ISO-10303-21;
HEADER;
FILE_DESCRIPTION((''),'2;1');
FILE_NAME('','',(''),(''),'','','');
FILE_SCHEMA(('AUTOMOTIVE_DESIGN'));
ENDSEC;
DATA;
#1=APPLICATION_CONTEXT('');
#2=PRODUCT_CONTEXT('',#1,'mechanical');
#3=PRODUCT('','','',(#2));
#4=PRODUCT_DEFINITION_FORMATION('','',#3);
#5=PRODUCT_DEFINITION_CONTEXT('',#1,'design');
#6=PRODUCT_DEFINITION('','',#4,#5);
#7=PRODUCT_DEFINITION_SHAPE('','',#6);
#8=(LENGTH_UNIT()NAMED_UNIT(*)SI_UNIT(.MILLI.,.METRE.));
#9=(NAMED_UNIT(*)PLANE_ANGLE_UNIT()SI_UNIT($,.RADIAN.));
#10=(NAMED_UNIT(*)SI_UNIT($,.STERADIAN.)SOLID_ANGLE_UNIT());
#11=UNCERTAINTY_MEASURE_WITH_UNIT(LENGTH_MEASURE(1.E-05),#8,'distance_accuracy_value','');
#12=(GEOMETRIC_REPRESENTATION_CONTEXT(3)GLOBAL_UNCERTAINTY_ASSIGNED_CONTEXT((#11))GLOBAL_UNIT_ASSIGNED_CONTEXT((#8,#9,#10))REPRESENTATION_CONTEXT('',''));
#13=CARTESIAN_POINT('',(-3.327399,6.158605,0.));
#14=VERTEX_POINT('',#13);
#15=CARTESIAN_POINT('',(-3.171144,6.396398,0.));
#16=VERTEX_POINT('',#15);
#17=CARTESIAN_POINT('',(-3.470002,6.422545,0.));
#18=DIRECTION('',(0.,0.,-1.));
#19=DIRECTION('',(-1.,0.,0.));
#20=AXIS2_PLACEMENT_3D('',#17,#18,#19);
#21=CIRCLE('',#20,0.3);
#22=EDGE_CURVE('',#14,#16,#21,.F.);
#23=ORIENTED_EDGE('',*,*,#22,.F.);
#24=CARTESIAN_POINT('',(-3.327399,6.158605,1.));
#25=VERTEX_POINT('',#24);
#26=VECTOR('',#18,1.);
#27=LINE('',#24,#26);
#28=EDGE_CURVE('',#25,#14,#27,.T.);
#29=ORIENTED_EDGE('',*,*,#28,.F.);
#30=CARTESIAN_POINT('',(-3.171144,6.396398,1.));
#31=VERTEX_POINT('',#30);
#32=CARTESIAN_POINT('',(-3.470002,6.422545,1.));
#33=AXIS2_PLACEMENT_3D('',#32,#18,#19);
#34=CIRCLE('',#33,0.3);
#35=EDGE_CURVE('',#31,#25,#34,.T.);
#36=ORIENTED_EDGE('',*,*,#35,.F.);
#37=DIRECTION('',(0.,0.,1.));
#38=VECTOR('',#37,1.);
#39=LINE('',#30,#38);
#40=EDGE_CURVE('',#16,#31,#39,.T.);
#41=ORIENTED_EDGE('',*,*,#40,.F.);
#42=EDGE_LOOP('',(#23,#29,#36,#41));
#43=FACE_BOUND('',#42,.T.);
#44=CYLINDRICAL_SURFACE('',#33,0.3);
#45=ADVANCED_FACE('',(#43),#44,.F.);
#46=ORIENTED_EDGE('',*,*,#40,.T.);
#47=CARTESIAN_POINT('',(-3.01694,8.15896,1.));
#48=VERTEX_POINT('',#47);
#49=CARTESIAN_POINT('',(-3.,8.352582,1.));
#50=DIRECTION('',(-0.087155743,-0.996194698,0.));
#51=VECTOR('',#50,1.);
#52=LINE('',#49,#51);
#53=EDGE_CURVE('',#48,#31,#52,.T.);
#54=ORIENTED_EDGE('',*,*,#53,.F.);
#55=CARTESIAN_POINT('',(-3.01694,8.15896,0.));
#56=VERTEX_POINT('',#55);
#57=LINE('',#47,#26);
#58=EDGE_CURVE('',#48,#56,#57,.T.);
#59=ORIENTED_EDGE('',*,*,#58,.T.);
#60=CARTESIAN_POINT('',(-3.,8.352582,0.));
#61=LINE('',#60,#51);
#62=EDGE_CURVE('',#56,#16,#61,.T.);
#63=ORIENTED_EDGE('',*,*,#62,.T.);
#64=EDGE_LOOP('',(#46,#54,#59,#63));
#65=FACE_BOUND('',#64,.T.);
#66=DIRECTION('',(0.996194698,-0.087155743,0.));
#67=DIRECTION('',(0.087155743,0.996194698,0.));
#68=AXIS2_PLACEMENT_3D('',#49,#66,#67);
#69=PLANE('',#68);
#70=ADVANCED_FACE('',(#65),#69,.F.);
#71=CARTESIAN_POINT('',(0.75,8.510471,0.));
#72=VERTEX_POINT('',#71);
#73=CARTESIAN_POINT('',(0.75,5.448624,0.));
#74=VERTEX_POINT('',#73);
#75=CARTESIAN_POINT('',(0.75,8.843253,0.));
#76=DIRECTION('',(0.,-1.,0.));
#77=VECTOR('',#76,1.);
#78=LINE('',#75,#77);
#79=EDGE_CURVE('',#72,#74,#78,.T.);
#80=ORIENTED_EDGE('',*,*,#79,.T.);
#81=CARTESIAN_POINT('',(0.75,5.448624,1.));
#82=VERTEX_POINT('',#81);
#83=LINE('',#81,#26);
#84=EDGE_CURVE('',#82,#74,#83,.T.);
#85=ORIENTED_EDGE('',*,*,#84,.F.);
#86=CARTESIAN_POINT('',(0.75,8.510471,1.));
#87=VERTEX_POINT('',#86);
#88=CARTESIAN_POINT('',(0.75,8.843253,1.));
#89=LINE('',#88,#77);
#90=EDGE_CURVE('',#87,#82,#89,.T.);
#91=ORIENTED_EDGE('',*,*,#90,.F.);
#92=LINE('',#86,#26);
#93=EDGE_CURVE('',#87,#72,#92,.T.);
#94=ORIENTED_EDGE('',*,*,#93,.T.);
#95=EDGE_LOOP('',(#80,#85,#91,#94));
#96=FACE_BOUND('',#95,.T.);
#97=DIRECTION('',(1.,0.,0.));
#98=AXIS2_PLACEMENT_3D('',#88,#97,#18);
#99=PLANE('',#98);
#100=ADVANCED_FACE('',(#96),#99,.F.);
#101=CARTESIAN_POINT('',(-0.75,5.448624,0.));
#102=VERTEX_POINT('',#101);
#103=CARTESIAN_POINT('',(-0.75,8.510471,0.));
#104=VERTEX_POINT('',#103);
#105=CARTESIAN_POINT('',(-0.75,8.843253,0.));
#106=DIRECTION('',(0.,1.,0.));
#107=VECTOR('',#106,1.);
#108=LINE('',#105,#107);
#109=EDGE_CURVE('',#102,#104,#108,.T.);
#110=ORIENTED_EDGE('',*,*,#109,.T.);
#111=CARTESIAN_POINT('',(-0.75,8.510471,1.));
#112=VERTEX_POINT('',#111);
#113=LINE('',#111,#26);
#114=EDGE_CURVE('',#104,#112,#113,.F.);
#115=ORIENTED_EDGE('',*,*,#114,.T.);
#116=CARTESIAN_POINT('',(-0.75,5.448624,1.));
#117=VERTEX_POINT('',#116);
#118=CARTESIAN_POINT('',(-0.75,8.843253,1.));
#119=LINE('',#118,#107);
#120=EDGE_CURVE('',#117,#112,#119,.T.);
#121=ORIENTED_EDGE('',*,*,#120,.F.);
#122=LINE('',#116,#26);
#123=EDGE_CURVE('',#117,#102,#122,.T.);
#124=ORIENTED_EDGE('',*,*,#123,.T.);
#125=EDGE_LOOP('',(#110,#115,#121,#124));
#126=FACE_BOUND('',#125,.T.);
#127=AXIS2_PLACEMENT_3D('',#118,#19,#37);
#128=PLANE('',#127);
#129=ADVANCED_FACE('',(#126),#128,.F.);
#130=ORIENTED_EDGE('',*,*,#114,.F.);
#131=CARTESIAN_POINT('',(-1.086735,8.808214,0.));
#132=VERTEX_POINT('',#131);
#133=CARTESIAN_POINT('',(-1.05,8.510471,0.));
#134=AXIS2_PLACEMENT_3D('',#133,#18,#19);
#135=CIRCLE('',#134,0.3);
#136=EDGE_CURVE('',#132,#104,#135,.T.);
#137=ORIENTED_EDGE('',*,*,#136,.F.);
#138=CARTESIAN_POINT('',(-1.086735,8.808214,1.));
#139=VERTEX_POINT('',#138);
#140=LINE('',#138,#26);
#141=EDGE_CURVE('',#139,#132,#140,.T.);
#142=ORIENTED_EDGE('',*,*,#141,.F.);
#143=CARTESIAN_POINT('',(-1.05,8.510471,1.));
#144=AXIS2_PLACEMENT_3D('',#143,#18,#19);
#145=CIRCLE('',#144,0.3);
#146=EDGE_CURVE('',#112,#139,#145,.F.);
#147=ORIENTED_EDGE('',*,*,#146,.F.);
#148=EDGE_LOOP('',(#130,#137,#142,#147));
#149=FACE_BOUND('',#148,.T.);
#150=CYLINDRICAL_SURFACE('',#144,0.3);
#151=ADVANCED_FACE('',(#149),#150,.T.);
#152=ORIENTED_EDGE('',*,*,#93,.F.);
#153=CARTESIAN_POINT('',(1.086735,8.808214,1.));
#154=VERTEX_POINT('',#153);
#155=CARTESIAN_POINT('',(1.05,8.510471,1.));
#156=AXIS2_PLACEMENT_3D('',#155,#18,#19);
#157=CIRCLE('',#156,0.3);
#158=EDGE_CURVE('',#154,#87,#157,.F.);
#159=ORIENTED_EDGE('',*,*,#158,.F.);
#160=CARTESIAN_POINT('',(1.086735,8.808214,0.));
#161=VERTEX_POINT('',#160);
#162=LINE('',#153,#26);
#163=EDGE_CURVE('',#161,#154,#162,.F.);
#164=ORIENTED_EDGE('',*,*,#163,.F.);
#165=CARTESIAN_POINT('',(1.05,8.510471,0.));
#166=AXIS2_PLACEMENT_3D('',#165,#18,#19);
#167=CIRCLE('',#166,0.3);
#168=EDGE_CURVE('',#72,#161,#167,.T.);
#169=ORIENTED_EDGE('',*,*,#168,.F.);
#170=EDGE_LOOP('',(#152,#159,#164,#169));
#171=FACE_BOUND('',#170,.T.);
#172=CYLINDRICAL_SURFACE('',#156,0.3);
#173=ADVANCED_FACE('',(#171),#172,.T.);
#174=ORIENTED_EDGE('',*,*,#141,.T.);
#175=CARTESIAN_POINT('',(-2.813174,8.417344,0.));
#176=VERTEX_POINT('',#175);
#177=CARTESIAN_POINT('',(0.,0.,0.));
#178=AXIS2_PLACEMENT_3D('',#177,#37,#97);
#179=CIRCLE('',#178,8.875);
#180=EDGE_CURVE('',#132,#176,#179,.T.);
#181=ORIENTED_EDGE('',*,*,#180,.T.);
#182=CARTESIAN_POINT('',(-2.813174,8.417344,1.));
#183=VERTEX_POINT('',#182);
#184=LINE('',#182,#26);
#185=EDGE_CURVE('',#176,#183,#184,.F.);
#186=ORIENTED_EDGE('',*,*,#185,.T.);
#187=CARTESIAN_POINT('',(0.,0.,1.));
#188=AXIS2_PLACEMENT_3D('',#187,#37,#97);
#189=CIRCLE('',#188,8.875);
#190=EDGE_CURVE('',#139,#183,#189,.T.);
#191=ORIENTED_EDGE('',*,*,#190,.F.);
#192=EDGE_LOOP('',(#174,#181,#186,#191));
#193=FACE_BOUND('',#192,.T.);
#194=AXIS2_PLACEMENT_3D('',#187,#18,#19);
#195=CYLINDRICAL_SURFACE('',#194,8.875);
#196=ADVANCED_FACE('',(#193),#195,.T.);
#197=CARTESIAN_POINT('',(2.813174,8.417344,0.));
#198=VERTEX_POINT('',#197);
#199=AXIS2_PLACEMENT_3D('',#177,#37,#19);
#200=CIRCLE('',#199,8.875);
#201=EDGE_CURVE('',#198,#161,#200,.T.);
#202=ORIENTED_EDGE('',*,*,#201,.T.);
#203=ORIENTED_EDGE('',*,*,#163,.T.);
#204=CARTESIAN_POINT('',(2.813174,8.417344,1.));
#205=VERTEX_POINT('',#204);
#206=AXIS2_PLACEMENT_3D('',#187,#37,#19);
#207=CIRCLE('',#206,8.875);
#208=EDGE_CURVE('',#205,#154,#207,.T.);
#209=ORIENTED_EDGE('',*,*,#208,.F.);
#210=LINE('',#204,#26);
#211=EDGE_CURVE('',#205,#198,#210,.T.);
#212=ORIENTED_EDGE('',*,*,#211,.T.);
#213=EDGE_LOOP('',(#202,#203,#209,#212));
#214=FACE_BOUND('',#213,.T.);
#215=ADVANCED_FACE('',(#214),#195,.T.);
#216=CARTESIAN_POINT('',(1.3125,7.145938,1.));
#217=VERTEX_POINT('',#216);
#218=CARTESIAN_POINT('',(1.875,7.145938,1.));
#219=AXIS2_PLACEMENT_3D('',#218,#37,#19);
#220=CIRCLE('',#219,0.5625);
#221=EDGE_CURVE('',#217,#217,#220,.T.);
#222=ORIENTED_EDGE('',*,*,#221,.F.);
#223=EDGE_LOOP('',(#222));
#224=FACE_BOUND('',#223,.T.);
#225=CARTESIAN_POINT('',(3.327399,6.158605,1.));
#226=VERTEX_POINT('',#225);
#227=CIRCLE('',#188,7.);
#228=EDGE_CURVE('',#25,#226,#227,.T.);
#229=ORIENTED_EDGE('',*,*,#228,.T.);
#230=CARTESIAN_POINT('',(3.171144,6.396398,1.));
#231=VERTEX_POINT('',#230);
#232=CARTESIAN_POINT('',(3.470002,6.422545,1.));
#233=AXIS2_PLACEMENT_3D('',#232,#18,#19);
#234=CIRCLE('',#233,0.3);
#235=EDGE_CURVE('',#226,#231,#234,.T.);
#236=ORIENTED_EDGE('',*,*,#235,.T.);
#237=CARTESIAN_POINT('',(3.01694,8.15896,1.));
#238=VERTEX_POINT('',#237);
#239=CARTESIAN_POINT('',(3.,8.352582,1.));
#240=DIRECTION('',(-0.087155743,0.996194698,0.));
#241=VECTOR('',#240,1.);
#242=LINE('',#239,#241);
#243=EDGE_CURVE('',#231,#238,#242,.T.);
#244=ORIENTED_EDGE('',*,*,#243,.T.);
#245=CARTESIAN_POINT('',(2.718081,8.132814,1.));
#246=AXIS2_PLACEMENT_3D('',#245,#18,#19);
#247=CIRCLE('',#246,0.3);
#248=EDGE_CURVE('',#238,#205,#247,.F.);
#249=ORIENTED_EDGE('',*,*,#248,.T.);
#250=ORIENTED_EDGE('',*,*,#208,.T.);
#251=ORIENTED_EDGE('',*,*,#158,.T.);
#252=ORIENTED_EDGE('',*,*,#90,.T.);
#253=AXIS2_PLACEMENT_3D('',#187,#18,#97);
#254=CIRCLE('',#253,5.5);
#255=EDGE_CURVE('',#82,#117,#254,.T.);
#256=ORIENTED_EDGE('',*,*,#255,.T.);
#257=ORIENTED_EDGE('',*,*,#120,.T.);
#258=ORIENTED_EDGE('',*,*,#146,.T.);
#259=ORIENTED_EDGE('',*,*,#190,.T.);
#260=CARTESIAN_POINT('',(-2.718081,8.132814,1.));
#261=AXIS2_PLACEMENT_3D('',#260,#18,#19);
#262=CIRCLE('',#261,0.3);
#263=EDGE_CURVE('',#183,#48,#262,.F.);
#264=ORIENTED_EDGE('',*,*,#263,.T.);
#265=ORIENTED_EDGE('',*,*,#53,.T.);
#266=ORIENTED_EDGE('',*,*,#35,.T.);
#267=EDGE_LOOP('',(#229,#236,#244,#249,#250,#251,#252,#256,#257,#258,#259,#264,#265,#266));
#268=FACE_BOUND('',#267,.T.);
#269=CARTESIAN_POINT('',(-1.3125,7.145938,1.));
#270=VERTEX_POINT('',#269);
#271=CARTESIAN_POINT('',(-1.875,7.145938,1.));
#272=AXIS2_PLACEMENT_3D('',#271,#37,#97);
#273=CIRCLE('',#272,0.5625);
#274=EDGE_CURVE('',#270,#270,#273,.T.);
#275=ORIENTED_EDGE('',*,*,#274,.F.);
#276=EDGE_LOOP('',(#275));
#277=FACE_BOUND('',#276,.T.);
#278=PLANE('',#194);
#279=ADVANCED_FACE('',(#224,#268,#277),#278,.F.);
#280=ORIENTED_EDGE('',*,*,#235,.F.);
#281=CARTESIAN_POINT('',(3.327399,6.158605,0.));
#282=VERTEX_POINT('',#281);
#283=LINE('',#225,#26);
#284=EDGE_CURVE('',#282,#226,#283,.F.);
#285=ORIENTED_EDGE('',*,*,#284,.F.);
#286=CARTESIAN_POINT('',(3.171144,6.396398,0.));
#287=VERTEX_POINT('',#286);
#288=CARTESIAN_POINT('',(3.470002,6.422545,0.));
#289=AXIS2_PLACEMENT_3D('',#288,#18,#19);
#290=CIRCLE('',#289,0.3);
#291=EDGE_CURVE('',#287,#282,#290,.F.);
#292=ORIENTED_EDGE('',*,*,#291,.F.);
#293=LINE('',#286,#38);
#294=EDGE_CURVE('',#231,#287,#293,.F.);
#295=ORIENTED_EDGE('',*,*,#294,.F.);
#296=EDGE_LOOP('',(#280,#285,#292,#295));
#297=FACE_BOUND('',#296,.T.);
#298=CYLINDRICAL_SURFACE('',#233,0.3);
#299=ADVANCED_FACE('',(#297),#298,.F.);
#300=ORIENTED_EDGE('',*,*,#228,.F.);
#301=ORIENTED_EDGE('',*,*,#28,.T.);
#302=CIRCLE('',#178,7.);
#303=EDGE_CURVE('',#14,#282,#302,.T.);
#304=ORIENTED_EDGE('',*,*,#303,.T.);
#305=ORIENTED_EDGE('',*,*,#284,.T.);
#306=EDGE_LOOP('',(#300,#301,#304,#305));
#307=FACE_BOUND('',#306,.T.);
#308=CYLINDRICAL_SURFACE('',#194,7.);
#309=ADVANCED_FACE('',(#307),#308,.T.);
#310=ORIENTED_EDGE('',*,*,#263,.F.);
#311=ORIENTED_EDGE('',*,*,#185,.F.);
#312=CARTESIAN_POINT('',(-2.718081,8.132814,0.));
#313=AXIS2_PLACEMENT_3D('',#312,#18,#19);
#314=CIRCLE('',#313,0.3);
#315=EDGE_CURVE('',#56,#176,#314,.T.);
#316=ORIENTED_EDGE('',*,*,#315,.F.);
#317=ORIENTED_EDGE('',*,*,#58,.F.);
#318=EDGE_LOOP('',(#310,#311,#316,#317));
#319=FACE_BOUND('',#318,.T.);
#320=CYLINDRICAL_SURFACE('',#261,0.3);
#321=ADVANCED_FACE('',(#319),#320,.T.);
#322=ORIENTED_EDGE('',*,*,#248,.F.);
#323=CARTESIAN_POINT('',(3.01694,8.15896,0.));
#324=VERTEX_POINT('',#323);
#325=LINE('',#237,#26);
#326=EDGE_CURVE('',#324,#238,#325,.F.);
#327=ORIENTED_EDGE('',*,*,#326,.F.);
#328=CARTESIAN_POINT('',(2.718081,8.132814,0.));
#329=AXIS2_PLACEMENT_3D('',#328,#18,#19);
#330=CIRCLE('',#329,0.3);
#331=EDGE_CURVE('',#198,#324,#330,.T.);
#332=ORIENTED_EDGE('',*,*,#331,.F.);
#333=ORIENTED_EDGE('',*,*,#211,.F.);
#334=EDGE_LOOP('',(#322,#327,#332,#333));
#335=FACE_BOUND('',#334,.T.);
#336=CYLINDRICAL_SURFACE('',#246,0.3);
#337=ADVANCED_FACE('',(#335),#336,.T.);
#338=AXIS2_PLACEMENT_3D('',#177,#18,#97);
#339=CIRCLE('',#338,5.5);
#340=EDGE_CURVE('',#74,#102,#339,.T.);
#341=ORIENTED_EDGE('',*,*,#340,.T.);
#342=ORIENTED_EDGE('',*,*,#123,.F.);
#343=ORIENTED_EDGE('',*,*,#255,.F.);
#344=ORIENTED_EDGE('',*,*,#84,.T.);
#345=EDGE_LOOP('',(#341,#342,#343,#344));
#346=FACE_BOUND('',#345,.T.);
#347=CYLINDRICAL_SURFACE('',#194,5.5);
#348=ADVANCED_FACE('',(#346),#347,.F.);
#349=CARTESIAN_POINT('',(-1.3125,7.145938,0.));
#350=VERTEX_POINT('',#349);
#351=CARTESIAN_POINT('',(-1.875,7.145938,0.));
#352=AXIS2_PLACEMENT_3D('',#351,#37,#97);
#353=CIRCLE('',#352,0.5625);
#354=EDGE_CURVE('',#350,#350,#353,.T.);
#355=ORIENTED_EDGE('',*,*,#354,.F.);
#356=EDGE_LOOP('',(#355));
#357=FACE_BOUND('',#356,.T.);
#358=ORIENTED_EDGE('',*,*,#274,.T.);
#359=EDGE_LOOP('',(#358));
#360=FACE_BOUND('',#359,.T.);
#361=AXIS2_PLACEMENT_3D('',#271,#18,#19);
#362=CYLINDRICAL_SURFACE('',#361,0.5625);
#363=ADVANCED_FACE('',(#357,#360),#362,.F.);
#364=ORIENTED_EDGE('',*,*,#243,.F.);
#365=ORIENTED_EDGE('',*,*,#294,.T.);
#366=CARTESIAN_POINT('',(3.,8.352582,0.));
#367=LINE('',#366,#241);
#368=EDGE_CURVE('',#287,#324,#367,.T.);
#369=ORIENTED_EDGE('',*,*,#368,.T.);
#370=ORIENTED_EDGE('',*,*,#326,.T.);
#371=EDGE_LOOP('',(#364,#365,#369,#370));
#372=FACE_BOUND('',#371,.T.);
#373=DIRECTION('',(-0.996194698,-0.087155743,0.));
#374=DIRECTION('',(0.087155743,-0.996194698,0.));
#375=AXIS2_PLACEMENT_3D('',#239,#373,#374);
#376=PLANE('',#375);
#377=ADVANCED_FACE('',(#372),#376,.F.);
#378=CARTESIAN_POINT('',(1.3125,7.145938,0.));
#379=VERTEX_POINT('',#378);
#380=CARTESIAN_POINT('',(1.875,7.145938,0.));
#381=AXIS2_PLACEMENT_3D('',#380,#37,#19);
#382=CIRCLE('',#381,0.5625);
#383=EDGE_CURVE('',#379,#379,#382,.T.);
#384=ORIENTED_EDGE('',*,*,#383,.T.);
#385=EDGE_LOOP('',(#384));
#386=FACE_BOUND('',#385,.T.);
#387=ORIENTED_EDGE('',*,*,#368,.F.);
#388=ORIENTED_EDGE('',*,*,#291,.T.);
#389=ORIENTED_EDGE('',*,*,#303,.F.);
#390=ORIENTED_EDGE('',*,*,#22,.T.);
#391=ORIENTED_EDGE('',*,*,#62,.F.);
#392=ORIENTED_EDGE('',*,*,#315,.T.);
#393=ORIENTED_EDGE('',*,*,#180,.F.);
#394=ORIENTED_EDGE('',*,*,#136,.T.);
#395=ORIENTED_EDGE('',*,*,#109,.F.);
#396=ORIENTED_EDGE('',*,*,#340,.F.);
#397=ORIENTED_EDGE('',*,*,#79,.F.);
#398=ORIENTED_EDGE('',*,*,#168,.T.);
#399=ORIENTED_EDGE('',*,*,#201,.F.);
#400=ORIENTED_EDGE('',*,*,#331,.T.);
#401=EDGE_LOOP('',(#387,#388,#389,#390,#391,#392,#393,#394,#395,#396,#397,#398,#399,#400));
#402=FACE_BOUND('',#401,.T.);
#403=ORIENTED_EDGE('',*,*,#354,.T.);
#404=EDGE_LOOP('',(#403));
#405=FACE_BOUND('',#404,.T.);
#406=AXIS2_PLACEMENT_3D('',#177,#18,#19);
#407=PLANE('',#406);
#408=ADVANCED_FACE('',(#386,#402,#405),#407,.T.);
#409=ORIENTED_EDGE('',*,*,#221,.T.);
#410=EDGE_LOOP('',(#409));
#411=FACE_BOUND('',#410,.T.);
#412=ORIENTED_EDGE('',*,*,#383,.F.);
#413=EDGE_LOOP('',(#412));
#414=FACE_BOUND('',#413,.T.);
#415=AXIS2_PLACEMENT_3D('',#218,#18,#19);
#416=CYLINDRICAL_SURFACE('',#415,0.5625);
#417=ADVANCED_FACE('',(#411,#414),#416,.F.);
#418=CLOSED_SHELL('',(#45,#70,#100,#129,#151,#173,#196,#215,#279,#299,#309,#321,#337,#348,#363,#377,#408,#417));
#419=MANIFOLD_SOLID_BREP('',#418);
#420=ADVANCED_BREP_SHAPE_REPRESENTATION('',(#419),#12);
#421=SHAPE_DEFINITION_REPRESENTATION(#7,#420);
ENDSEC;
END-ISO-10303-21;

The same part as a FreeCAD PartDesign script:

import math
import FreeCAD as App
import Part
import Sketcher
Q = App.Units.Quantity


def edges_at(feature, points):
    """Names of the edges that pass closest to the given points."""
    edges = feature.Shape.Edges
    near = lambda p: min(range(len(edges)), key=lambda i: edges[i].distToShape(Part.Vertex(*p))[0])
    return sorted({f"Edge{near(p) + 1}" for p in points})

doc = App.newDocument("Part")
params = doc.addObject("Spreadsheet::Sheet", "Params")
for row, (alias, value) in enumerate([
    ("sketch1_radius", "7 mm"),
    ("sketch1_radius2", "5.5 mm"),
    ("pad1_length", "1 mm"),
    ("fillet_radius", "0.3 mm"),
    ("fillet2_radius", "0.3 mm"),
], start=1):
    params.set(f"A{row}", alias)
    params.set(f"B{row}", "=" + value)
    params.setAlias(f"B{row}", alias)

body = doc.addObject("PartDesign::Body", "Body")

# Sketch on XY plane
sketch1 = body.newObject("Sketcher::SketchObject", "Sketch")
sketch1.AttachmentSupport = (doc.getObject("XY_Plane"), [""])
sketch1.MapMode = "FlatFace"
sketch1.addGeometry([
    Part.LineSegment(App.Vector(-0.8, 5.4, 0), App.Vector(-0.8, 8.8, 0)),  # 0
    Part.ArcOfCircle(Part.Circle(App.Vector(0, 0, 0), App.Vector(0, 0, 1), 8.9), math.radians(94.85), math.radians(109.76)),  # 1
    Part.LineSegment(App.Vector(-3, 8.4, 0), App.Vector(-3.2, 6.2, 0)),  # 2
    Part.ArcOfCircle(Part.Circle(App.Vector(0, 0, 0), App.Vector(0, 0, 1), 7), math.radians(117), math.radians(423)),  # 3
    Part.LineSegment(App.Vector(3.2, 6.2, 0), App.Vector(3, 8.4, 0)),  # 4
    Part.ArcOfCircle(Part.Circle(App.Vector(0, 0, 0), App.Vector(0, 0, 1), 8.9), math.radians(70.24), math.radians(85.15)),  # 5
    Part.LineSegment(App.Vector(0.8, 8.8, 0), App.Vector(0.8, 5.4, 0)),  # 6
    Part.ArcOfCircle(Part.Circle(App.Vector(0, 0, 0), App.Vector(0, 0, 1), 5.5), math.radians(98), math.radians(442)),  # 7
    Part.Circle(App.Vector(1.9, 7.1, 0), App.Vector(0, 0, 1), 0.6),  # 8
    Part.Circle(App.Vector(-1.9, 7.1, 0), App.Vector(0, 0, 1), 0.6),  # 9
], False)
sketch1.addConstraint([
    Sketcher.Constraint("Coincident", 0, 2, 1, 1),
    Sketcher.Constraint("Coincident", 1, 2, 2, 1),
    Sketcher.Constraint("Coincident", 2, 2, 3, 1),
    Sketcher.Constraint("Coincident", 3, 2, 4, 1),
    Sketcher.Constraint("Coincident", 4, 2, 5, 1),
    Sketcher.Constraint("Coincident", 5, 2, 6, 1),
    Sketcher.Constraint("Coincident", 6, 2, 7, 2),
    Sketcher.Constraint("Coincident", 7, 1, 0, 1),
    Sketcher.Constraint("Vertical", 0),
    Sketcher.Constraint("Vertical", 6),
    Sketcher.Constraint("Coincident", 1, 3, -1, 1),
    Sketcher.Constraint("Coincident", 3, 3, -1, 1),
    Sketcher.Constraint("Coincident", 5, 3, -1, 1),
    Sketcher.Constraint("Coincident", 7, 3, -1, 1),
    Sketcher.Constraint("Equal", 1, 5),
    Sketcher.Constraint("Equal", 8, 9),
    Sketcher.Constraint("Symmetric", 8, 3, 9, 3, -2),
    Sketcher.Constraint("Horizontal", 2, 2, 3, 2),
    Sketcher.Constraint("Horizontal", 1, 2, 4, 2),
    Sketcher.Constraint("Horizontal", 0, 2, 5, 2),
    Sketcher.Constraint("Radius", 3, 7.0),
    Sketcher.Constraint("Radius", 7, 5.5),
    Sketcher.Constraint("Angle", 2, Q("-95 deg")),
    Sketcher.Constraint("Diameter", 8, 1.125),
    Sketcher.Constraint("DistanceX", 1, 2, -1, 1, 3.0),
    Sketcher.Constraint("Radius", 1, 8.875),
    Sketcher.Constraint("DistanceX", 0, 2, 5, 2, 1.5),
    Sketcher.Constraint("DistanceX", 9, 3, 8, 3, 3.75),
    Sketcher.Constraint("DistanceY", -1, 1, 8, 3, 7.145938),
])
sketch1.setExpression("Constraints[20]", "Params.sketch1_radius")
sketch1.setExpression("Constraints[21]", "Params.sketch1_radius2")
pad1 = body.newObject("PartDesign::Pad", "Pad")
pad1.Profile = sketch1
pad1.setExpression("Length", "Params.pad1_length")
doc.recompute()

fillet = body.newObject("PartDesign::Fillet", "Fillet")
fillet.Base = (pad1, edges_at(pad1, [(3, 8.353, 0.5), (-3, 8.353, 0.5)]))
fillet.setExpression("Radius", "Params.fillet_radius")
doc.recompute()

fillet2 = body.newObject("PartDesign::Fillet", "Fillet001")
fillet2.Base = (fillet, edges_at(fillet, [
    (3.185, 6.233, 0.5),
    (-3.185, 6.233, 0.5),
    (-0.75, 8.843, 0.5),
    (0.75, 8.843, 0.5),
]))
fillet2.setExpression("Radius", "Params.fillet2_radius")

doc.recompute()
